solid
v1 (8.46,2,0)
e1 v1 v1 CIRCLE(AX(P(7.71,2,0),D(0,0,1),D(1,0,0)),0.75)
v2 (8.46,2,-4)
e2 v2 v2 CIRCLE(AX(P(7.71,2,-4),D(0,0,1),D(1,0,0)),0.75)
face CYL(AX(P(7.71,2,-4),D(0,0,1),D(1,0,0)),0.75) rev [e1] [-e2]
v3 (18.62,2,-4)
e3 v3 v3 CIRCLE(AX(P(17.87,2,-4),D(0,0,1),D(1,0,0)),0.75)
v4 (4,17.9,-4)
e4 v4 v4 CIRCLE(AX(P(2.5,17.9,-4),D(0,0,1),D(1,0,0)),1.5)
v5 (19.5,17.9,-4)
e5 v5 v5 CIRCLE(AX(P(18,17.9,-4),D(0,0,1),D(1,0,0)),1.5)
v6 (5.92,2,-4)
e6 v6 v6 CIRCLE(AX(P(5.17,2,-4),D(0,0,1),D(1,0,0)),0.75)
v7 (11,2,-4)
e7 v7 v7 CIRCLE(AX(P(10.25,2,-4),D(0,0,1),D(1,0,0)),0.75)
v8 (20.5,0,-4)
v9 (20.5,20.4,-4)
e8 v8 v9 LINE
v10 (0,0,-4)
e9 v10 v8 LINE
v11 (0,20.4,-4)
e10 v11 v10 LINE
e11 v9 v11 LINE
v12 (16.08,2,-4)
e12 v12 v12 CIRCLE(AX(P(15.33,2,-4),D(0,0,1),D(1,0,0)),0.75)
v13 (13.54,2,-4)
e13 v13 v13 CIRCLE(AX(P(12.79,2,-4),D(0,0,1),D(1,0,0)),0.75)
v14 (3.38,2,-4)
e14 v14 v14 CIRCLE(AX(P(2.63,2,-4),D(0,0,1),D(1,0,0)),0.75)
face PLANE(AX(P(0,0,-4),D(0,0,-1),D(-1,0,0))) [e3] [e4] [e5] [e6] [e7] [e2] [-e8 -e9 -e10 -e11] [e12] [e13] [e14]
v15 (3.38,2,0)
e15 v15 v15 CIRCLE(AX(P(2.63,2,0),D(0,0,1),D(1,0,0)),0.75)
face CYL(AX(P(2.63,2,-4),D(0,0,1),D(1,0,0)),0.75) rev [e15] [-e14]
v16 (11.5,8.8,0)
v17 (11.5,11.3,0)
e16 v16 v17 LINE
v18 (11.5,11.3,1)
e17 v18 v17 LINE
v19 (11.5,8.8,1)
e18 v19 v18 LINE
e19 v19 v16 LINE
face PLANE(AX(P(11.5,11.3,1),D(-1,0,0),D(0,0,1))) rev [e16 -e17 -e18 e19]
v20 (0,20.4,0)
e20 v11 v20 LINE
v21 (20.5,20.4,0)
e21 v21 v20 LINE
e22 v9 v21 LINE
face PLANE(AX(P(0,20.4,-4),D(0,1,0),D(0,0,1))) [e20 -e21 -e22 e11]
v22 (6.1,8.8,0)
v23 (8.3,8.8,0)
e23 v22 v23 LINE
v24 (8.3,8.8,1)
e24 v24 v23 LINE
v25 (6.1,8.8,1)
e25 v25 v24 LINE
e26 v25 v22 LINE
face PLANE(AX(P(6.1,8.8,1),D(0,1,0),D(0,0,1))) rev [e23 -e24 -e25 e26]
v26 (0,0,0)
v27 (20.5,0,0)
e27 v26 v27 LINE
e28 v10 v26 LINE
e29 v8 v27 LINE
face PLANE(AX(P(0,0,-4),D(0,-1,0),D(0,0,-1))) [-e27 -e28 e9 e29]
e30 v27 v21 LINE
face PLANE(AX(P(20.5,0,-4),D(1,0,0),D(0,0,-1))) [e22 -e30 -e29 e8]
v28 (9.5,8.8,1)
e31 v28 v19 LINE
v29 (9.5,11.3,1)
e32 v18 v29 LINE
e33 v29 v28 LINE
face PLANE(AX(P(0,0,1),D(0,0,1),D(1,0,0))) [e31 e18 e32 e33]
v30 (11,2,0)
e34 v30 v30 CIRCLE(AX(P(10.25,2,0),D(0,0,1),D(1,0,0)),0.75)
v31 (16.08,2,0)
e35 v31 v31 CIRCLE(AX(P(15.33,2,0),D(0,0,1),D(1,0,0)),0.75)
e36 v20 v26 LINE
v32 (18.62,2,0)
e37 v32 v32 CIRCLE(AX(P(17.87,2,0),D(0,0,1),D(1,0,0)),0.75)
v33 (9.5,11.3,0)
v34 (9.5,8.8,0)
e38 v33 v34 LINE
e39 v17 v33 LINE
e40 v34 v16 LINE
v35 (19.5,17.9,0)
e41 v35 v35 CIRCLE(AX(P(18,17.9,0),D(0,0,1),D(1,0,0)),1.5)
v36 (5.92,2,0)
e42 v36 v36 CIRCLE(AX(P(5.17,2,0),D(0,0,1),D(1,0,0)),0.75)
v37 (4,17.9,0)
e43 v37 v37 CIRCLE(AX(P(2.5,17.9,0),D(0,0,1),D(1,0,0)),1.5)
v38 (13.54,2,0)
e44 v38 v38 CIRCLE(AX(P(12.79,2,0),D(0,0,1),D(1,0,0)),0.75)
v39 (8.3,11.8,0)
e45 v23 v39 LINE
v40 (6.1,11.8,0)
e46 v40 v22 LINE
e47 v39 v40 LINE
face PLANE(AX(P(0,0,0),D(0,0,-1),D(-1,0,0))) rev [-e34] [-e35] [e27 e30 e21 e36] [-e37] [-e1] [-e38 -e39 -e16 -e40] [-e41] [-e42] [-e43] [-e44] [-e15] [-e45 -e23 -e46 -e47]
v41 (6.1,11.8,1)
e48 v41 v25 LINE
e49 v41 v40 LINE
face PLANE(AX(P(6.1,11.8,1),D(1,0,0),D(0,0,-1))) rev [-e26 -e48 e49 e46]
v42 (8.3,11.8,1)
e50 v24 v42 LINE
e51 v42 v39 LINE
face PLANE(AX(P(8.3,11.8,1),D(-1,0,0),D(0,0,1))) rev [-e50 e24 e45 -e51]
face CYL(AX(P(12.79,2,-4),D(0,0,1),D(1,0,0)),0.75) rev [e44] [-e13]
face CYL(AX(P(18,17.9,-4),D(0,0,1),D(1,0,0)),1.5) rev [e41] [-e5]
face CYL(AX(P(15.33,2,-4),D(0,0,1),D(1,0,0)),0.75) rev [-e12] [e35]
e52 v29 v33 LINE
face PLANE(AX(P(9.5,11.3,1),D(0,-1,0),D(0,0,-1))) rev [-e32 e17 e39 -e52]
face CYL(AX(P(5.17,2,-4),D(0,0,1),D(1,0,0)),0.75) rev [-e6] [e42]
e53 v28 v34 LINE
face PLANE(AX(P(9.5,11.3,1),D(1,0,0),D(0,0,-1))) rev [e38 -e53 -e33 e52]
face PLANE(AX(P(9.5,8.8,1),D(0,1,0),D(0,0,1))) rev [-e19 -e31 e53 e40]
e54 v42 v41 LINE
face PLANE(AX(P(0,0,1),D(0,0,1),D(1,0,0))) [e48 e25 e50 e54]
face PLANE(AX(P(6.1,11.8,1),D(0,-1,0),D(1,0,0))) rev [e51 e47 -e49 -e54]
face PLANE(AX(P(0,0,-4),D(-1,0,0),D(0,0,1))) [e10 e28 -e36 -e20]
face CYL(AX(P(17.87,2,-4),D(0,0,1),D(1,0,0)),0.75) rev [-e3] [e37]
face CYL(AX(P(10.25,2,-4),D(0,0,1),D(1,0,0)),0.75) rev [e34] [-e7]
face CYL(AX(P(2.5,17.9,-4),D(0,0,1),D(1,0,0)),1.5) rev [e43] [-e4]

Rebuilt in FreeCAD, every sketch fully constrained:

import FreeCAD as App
import Part
import Sketcher
from FreeCAD import Vector
Q = App.Units.Quantity

doc = App.newDocument("Part")
body = doc.addObject("PartDesign::Body", "Body")

sketch1 = doc.addObject("Sketcher::SketchObject", "Sketch")
body.addObject(sketch1)
sketch1.AttachmentSupport = (doc.XY_Plane, [""])
sketch1.MapMode = "FlatFace"
sketch1.addGeometry(Part.LineSegment(Vector(0, 20.4, 0), Vector(0, 0, 0)), False)
sketch1.addGeometry(Part.LineSegment(Vector(0, 0, 0), Vector(20.5, 0, 0)), False)
sketch1.addGeometry(Part.LineSegment(Vector(20.5, 0, 0), Vector(20.5, 20.4, 0)), False)
sketch1.addGeometry(Part.LineSegment(Vector(20.5, 20.4, 0), Vector(0, 20.4, 0)), False)
sketch1.addConstraint(Sketcher.Constraint("Coincident", 0, 2, 1, 1))
sketch1.addConstraint(Sketcher.Constraint("Coincident", 1, 2, 2, 1))
sketch1.addConstraint(Sketcher.Constraint("Coincident", 2, 2, 3, 1))
sketch1.addConstraint(Sketcher.Constraint("Coincident", 3, 2, 0, 1))
sketch1.addConstraint(Sketcher.Constraint("Vertical", 0))
sketch1.addConstraint(Sketcher.Constraint("Horizontal", 1))
sketch1.addConstraint(Sketcher.Constraint("Vertical", 2))
sketch1.addConstraint(Sketcher.Constraint("Horizontal", 3))
sketch1.addConstraint(Sketcher.Constraint("Coincident", 0, 2, -1, 1))
sketch1.addConstraint(Sketcher.Constraint("DistanceX", 1, 1, 1, 2, Q("20.5 mm")))
sketch1.addConstraint(Sketcher.Constraint("DistanceY", 0, 2, 0, 1, Q("20.4 mm")))
pad1 = doc.addObject("PartDesign::Pad", "Pad")
body.addObject(pad1)
pad1.Profile = sketch1
pad1.Length = 4
pad1.Reversed = True

sketch2 = doc.addObject("Sketcher::SketchObject", "Sketch001")
body.addObject(sketch2)
sketch2.AttachmentSupport = (doc.XY_Plane, [""])
sketch2.MapMode = "FlatFace"
sketch2.addGeometry(Part.Circle(Vector(2.5, 17.9, 0), Vector(0, 0, 1), 1.5), False)
sketch2.addGeometry(Part.Circle(Vector(18, 17.9, 0), Vector(0, 0, 1), 1.5), False)
sketch2.addGeometry(Part.Circle(Vector(2.63, 2, 0), Vector(0, 0, 1), 0.75), False)
sketch2.addGeometry(Part.Circle(Vector(5.17, 2, 0), Vector(0, 0, 1), 0.75), False)
sketch2.addGeometry(Part.Circle(Vector(7.71, 2, 0), Vector(0, 0, 1), 0.75), False)
sketch2.addGeometry(Part.Circle(Vector(10.25, 2, 0), Vector(0, 0, 1), 0.75), False)
sketch2.addGeometry(Part.Circle(Vector(12.79, 2, 0), Vector(0, 0, 1), 0.75), False)
sketch2.addGeometry(Part.Circle(Vector(15.33, 2, 0), Vector(0, 0, 1), 0.75), False)
sketch2.addGeometry(Part.Circle(Vector(17.87, 2, 0), Vector(0, 0, 1), 0.75), False)
sketch2.addConstraint(Sketcher.Constraint("Equal", 0, 1))
sketch2.addConstraint(Sketcher.Constraint("Equal", 2, 3))
sketch2.addConstraint(Sketcher.Constraint("Equal", 3, 4))
sketch2.addConstraint(Sketcher.Constraint("Equal", 4, 5))
sketch2.addConstraint(Sketcher.Constraint("Equal", 5, 6))
sketch2.addConstraint(Sketcher.Constraint("Equal", 6, 7))
sketch2.addConstraint(Sketcher.Constraint("Equal", 7, 8))
sketch2.addConstraint(Sketcher.Constraint("Horizontal", 0, 3, 1, 3))
sketch2.addConstraint(Sketcher.Constraint("Horizontal", 2, 3, 3, 3))
sketch2.addConstraint(Sketcher.Constraint("Horizontal", 3, 3, 4, 3))
sketch2.addConstraint(Sketcher.Constraint("Horizontal", 4, 3, 5, 3))
sketch2.addConstraint(Sketcher.Constraint("Horizontal", 5, 3, 6, 3))
sketch2.addConstraint(Sketcher.Constraint("Horizontal", 6, 3, 7, 3))
sketch2.addConstraint(Sketcher.Constraint("Horizontal", 7, 3, 8, 3))
sketch2.addConstraint(Sketcher.Constraint("Diameter", 0, Q("3 mm")))
sketch2.addConstraint(Sketcher.Constraint("Diameter", 2, Q("1.5 mm")))
sketch2.addConstraint(Sketcher.Constraint("DistanceX", -1, 1, 1, 3, Q("18 mm")))
sketch2.addConstraint(Sketcher.Constraint("DistanceY", -1, 1, 2, 3, Q("2 mm")))
sketch2.addConstraint(Sketcher.Constraint("DistanceX", -1, 1, 0, 3, Q("2.5 mm")))
sketch2.addConstraint(Sketcher.Constraint("DistanceY", -1, 1, 0, 3, Q("17.9 mm")))
sketch2.addConstraint(Sketcher.Constraint("DistanceX", 2, 3, 7, 3, Q("12.7 mm")))
sketch2.addConstraint(Sketcher.Constraint("DistanceX", 3, 3, 8, 3, Q("12.7 mm")))
sketch2.addConstraint(Sketcher.Constraint("DistanceX", -1, 1, 2, 3, Q("2.63 mm")))
sketch2.addConstraint(Sketcher.Constraint("DistanceX", -1, 1, 3, 3, Q("5.17 mm")))
sketch2.addConstraint(Sketcher.Constraint("DistanceX", -1, 1, 4, 3, Q("7.71 mm")))
sketch2.addConstraint(Sketcher.Constraint("DistanceX", -1, 1, 5, 3, Q("10.25 mm")))
sketch2.addConstraint(Sketcher.Constraint("DistanceX", -1, 1, 6, 3, Q("12.79 mm")))
pocket1 = doc.addObject("PartDesign::Pocket", "Pocket")
body.addObject(pocket1)
pocket1.Profile = sketch2
pocket1.Length = 4

sketch3 = doc.addObject("Sketcher::SketchObject", "Sketch002")
body.addObject(sketch3)
sketch3.AttachmentSupport = (doc.XY_Plane, [""])
sketch3.MapMode = "FlatFace"
sketch3.addGeometry(Part.LineSegment(Vector(6.1, 11.8, 0), Vector(6.1, 8.8, 0)), False)
sketch3.addGeometry(Part.LineSegment(Vector(6.1, 8.8, 0), Vector(8.3, 8.8, 0)), False)
sketch3.addGeometry(Part.LineSegment(Vector(8.3, 8.8, 0), Vector(8.3, 11.8, 0)), False)
sketch3.addGeometry(Part.LineSegment(Vector(8.3, 11.8, 0), Vector(6.1, 11.8, 0)), False)
sketch3.addGeometry(Part.LineSegment(Vector(9.5, 11.3, 0), Vector(9.5, 8.8, 0)), False)
sketch3.addGeometry(Part.LineSegment(Vector(9.5, 8.8, 0), Vector(11.5, 8.8, 0)), False)
sketch3.addGeometry(Part.LineSegment(Vector(11.5, 8.8, 0), Vector(11.5, 11.3, 0)), False)
sketch3.addGeometry(Part.LineSegment(Vector(11.5, 11.3, 0), Vector(9.5, 11.3, 0)), False)
sketch3.addConstraint(Sketcher.Constraint("Coincident", 0, 2, 1, 1))
sketch3.addConstraint(Sketcher.Constraint("Coincident", 1, 2, 2, 1))
sketch3.addConstraint(Sketcher.Constraint("Coincident", 2, 2, 3, 1))
sketch3.addConstraint(Sketcher.Constraint("Coincident", 3, 2, 0, 1))
sketch3.addConstraint(Sketcher.Constraint("Coincident", 4, 2, 5, 1))
sketch3.addConstraint(Sketcher.Constraint("Coincident", 5, 2, 6, 1))
sketch3.addConstraint(Sketcher.Constraint("Coincident", 6, 2, 7, 1))
sketch3.addConstraint(Sketcher.Constraint("Coincident", 7, 2, 4, 1))
sketch3.addConstraint(Sketcher.Constraint("Vertical", 0))
sketch3.addConstraint(Sketcher.Constraint("Horizontal", 1))
sketch3.addConstraint(Sketcher.Constraint("Vertical", 2))
sketch3.addConstraint(Sketcher.Constraint("Horizontal", 3))
sketch3.addConstraint(Sketcher.Constraint("Vertical", 4))
sketch3.addConstraint(Sketcher.Constraint("Horizontal", 5))
sketch3.addConstraint(Sketcher.Constraint("Vertical", 6))
sketch3.addConstraint(Sketcher.Constraint("Horizontal", 7))
sketch3.addConstraint(Sketcher.Constraint("Horizontal", 1, 2, 4, 2))
sketch3.addConstraint(Sketcher.Constraint("DistanceX", 5, 1, 5, 2, Q("2 mm")))
sketch3.addConstraint(Sketcher.Constraint("DistanceY", 0, 2, 0, 1, Q("3 mm")))
sketch3.addConstraint(Sketcher.Constraint("DistanceX", 1, 1, 1, 2, Q("2.2 mm")))
sketch3.addConstraint(Sketcher.Constraint("DistanceY", 4, 2, 4, 1, Q("2.5 mm")))
sketch3.addConstraint(Sketcher.Constraint("DistanceX", -1, 1, 0, 2, Q("6.1 mm")))
sketch3.addConstraint(Sketcher.Constraint("DistanceY", -1, 1, 0, 2, Q("8.8 mm")))
sketch3.addConstraint(Sketcher.Constraint("DistanceX", -1, 1, 4, 2, Q("9.5 mm")))
pad2 = doc.addObject("PartDesign::Pad", "Pad001")
body.addObject(pad2)
pad2.Profile = sketch3
pad2.Length = 1

doc.recompute()
